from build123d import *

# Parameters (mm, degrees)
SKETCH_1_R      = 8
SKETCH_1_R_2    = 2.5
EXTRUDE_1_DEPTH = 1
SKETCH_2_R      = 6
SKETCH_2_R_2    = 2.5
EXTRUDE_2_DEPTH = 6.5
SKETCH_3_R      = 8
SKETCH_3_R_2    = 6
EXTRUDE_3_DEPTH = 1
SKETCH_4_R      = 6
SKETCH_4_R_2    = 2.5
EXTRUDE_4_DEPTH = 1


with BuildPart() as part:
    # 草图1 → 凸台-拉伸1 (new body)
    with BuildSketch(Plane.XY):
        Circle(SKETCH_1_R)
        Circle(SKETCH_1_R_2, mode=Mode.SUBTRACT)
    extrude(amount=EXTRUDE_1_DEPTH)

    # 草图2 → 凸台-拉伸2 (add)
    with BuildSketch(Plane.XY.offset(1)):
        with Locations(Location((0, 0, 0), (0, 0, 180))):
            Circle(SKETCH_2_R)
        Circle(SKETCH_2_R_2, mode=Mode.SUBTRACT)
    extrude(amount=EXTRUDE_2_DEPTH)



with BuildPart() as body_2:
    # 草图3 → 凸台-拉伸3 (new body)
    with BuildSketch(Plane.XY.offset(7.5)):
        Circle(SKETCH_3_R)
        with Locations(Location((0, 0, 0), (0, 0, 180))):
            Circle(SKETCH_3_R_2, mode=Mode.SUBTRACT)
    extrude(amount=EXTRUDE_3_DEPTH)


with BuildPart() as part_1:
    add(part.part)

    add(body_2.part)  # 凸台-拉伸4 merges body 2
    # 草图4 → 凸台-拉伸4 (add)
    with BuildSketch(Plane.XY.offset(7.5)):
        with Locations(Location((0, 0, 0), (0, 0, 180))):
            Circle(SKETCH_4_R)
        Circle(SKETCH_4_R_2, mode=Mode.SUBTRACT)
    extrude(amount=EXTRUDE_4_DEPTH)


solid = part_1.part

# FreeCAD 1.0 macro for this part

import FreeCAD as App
import Part
import Sketcher

doc = App.newDocument("Part")
body = doc.addObject("PartDesign::Body", "Body")

# Sketch on XY plane
sketch1 = body.newObject("Sketcher::SketchObject", "Sketch")
sketch1.AttachmentSupport = (doc.getObject("XY_Plane"), [""])
sketch1.MapMode = "FlatFace"
sketch1.addGeometry(Part.Circle(App.Vector(0, 0, 0), App.Vector(0, 0, 1), 8), False)
sketch1.addGeometry(Part.Circle(App.Vector(0, 0, 0), App.Vector(0, 0, 1), 2.5), False)
sketch1.addConstraint(Sketcher.Constraint("Coincident", 0, 3, -1, 1))
sketch1.addConstraint(Sketcher.Constraint("Coincident", 1, 3, -1, 1))
sketch1.addConstraint(Sketcher.Constraint("Diameter", 0, 16.0))
sketch1.addConstraint(Sketcher.Constraint("Diameter", 1, 5.0))
pad1 = body.newObject("PartDesign::Pad", "Pad")
pad1.Profile = sketch1
pad1.Length = 1

# Sketch on XY plane
sketch2 = body.newObject("Sketcher::SketchObject", "Sketch001")
sketch2.AttachmentSupport = (doc.getObject("XY_Plane"), [""])
sketch2.MapMode = "FlatFace"
sketch2.AttachmentOffset = App.Placement(App.Vector(0, 0, 1), App.Rotation())
sketch2.addGeometry(Part.Circle(App.Vector(0, 0, 0), App.Vector(0, 0, 1), 6), False)
sketch2.addGeometry(Part.Circle(App.Vector(0, 0, 0), App.Vector(0, 0, 1), 2.5), False)
sketch2.addConstraint(Sketcher.Constraint("Coincident", 0, 3, -1, 1))
sketch2.addConstraint(Sketcher.Constraint("Coincident", 1, 3, -1, 1))
sketch2.addConstraint(Sketcher.Constraint("Diameter", 0, 12.0))
sketch2.addConstraint(Sketcher.Constraint("Diameter", 1, 5.0))
pad2 = body.newObject("PartDesign::Pad", "Pad001")
pad2.Profile = sketch2
pad2.Length = 6.5
body2 = doc.addObject("PartDesign::Body", "Body001")

# Sketch on XY plane
sketch3 = body2.newObject("Sketcher::SketchObject", "Sketch002")
sketch3.AttachmentSupport = (doc.getObject("XY_Plane001"), [""])
sketch3.MapMode = "FlatFace"
sketch3.AttachmentOffset = App.Placement(App.Vector(0, 0, 7.5), App.Rotation())
sketch3.addGeometry(Part.Circle(App.Vector(0, 0, 0), App.Vector(0, 0, 1), 8), False)
sketch3.addGeometry(Part.Circle(App.Vector(0, 0, 0), App.Vector(0, 0, 1), 6), False)
sketch3.addConstraint(Sketcher.Constraint("Coincident", 0, 3, -1, 1))
sketch3.addConstraint(Sketcher.Constraint("Coincident", 1, 3, -1, 1))
sketch3.addConstraint(Sketcher.Constraint("Diameter", 0, 16.0))
sketch3.addConstraint(Sketcher.Constraint("Diameter", 1, 12.0))
pad3 = body2.newObject("PartDesign::Pad", "Pad002")
pad3.Profile = sketch3
pad3.Length = 1
body.AllowCompound = True
doc.recompute()

boolean = body.newObject("PartDesign::Boolean", "Boolean")
boolean.Type = "Fuse"
boolean.addObjects([body2])

# Sketch on XY plane
sketch4 = body.newObject("Sketcher::SketchObject", "Sketch003")
sketch4.AttachmentSupport = (doc.getObject("XY_Plane"), [""])
sketch4.MapMode = "FlatFace"
sketch4.AttachmentOffset = App.Placement(App.Vector(0, 0, 7.5), App.Rotation())
sketch4.addGeometry(Part.Circle(App.Vector(0, 0, 0), App.Vector(0, 0, 1), 6), False)
sketch4.addGeometry(Part.Circle(App.Vector(0, 0, 0), App.Vector(0, 0, 1), 2.5), False)
sketch4.addConstraint(Sketcher.Constraint("Coincident", 0, 3, -1, 1))
sketch4.addConstraint(Sketcher.Constraint("Coincident", 1, 3, -1, 1))
sketch4.addConstraint(Sketcher.Constraint("Diameter", 0, 12.0))
sketch4.addConstraint(Sketcher.Constraint("Diameter", 1, 5.0))
pad4 = body.newObject("PartDesign::Pad", "Pad003")
pad4.Profile = sketch4
pad4.Length = 1

doc.recompute()
